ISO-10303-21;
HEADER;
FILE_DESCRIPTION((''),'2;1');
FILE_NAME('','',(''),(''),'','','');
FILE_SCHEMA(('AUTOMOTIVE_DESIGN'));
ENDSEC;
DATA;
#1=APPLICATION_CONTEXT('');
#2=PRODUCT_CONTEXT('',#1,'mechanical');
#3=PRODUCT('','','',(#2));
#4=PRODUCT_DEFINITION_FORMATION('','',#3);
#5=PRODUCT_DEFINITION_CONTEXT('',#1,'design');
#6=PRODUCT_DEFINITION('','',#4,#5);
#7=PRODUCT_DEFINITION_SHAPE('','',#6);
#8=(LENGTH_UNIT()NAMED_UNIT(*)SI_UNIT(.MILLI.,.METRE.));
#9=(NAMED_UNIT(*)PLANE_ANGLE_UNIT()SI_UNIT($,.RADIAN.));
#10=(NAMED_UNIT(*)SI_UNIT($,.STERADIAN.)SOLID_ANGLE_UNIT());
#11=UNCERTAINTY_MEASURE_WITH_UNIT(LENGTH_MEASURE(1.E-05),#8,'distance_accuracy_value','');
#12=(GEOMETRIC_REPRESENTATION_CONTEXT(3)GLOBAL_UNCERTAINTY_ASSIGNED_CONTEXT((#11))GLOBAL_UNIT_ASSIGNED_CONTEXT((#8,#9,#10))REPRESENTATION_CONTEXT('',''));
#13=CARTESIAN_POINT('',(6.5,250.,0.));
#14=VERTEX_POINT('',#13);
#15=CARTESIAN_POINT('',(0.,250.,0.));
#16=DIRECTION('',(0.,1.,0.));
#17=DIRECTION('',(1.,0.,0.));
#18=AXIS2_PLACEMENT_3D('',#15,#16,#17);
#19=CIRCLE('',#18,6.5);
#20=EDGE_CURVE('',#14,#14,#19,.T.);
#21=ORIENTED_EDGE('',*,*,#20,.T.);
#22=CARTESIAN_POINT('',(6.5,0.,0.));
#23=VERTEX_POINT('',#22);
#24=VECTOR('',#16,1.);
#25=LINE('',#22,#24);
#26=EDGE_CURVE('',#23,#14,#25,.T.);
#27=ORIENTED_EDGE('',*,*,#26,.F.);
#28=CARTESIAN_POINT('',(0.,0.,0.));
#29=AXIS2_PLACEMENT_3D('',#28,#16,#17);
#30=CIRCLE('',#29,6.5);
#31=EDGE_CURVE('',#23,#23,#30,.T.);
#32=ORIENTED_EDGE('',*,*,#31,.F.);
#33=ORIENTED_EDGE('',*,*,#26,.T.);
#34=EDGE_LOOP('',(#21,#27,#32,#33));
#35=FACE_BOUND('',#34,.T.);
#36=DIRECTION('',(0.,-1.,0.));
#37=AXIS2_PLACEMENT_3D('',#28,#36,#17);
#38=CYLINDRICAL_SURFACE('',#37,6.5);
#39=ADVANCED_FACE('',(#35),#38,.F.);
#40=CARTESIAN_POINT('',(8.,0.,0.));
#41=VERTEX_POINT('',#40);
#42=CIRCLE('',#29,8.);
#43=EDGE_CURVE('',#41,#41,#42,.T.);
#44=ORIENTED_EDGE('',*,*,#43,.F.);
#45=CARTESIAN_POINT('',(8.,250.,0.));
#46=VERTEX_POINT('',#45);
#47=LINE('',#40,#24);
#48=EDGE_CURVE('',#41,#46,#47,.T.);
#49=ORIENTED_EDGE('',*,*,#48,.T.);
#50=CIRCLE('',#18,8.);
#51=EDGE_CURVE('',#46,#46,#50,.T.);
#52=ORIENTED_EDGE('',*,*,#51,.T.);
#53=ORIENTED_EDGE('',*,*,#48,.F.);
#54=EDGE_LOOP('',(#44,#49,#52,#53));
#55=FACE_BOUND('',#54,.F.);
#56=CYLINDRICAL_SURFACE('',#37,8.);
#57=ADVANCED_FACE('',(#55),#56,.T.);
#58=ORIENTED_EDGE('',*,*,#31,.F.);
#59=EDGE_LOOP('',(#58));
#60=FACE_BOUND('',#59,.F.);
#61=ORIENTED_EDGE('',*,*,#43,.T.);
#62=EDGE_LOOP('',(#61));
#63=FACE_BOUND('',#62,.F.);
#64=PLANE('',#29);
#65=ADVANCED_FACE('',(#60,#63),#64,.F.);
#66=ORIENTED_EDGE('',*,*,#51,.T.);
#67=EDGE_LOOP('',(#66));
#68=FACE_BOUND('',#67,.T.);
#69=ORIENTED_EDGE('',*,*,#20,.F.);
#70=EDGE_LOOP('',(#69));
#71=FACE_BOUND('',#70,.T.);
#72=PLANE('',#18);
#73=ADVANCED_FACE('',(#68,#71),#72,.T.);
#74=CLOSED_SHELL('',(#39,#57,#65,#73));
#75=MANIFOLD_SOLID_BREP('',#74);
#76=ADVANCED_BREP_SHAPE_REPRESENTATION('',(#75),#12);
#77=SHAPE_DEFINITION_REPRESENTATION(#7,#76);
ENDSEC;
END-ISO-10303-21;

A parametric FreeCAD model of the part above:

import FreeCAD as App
import Part
import Sketcher

doc = App.newDocument("Part")
body = doc.addObject("PartDesign::Body", "Body")

sketch1 = doc.addObject("Sketcher::SketchObject", "Sketch")
body.addObject(sketch1)
sketch1.AttachmentSupport = (doc.XZ_Plane, [""])
sketch1.MapMode = "FlatFace"
sketch1.addGeometry(Part.Circle(App.Vector(0, 0, 0), App.Vector(0, 0, 1), 8), False)
sketch1.addGeometry(Part.Circle(App.Vector(0, 0, 0), App.Vector(0, 0, 1), 6), False)
sketch1.addConstraint(Sketcher.Constraint("Coincident", 0, 3, -1, 1))
sketch1.addConstraint(Sketcher.Constraint("Coincident", 1, 3, -1, 1))
sketch1.addConstraint(Sketcher.Constraint("Diameter", 0, 16.0))
sketch1.addConstraint(Sketcher.Constraint("Diameter", 1, 13.0))
pad1 = doc.addObject("PartDesign::Pad", "Pad")
body.addObject(pad1)
pad1.Profile = sketch1
pad1.Length = 250
pad1.Reversed = True

doc.recompute()
